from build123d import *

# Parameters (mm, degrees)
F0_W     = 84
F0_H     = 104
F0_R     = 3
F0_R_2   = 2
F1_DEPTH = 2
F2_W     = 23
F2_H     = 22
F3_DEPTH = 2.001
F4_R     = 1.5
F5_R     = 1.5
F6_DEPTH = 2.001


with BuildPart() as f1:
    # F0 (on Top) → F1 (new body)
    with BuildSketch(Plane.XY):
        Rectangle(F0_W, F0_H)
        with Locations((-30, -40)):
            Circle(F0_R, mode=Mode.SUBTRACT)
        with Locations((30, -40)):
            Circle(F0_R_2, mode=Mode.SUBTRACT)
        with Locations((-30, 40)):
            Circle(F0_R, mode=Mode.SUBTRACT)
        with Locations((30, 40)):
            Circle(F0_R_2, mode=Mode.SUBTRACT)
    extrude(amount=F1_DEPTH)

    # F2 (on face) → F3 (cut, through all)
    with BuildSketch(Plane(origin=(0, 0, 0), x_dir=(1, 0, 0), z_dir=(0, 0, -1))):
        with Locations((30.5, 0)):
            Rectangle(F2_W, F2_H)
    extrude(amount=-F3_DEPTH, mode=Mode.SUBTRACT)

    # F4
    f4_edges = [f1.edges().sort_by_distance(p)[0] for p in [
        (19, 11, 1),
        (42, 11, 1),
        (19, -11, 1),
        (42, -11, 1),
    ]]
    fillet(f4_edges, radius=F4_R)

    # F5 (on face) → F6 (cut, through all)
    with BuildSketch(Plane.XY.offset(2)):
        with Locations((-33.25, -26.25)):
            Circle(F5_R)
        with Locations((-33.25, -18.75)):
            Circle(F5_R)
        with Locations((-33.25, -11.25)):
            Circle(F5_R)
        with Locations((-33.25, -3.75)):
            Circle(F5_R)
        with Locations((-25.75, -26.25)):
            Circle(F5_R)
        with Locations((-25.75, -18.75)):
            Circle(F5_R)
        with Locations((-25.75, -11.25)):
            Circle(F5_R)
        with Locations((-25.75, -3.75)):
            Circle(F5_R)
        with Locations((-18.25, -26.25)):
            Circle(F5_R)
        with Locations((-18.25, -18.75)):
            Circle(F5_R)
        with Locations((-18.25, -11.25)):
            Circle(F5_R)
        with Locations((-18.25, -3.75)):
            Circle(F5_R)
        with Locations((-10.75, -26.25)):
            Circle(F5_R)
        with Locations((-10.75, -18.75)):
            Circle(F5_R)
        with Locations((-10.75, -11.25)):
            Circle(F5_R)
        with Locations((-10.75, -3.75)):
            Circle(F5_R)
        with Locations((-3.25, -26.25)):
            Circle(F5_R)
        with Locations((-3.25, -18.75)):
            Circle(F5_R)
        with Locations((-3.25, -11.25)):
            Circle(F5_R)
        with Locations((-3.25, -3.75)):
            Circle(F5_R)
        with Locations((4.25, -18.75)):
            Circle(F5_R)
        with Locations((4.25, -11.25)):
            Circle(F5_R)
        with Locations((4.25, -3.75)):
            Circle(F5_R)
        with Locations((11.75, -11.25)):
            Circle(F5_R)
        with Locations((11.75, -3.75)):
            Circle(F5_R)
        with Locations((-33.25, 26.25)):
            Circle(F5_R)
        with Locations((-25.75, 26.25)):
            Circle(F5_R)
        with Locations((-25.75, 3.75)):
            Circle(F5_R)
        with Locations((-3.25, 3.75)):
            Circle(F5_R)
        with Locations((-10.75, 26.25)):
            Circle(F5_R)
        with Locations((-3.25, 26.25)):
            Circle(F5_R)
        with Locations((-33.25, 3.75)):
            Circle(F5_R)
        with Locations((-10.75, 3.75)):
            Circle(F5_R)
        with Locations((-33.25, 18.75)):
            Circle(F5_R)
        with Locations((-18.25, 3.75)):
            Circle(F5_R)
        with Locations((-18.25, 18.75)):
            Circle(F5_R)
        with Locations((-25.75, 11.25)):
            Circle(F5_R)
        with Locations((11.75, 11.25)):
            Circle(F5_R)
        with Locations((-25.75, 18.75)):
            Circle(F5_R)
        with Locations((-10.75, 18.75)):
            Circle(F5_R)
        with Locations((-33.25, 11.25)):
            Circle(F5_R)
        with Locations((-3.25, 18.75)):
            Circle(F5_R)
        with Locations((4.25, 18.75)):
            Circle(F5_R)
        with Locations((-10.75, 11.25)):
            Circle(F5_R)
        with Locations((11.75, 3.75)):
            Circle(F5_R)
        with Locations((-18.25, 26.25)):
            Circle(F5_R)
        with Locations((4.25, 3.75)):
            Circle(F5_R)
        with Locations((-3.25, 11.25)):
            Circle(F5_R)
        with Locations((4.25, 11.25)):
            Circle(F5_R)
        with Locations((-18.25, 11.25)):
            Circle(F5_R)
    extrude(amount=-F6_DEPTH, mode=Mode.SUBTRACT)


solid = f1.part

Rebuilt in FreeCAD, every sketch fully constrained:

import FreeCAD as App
import Part
import Sketcher
Q = App.Units.Quantity


def edges_at(feature, points):
    """Names of the edges that pass closest to the given points."""
    edges = feature.Shape.Edges
    near = lambda p: min(range(len(edges)), key=lambda i: edges[i].distToShape(Part.Vertex(*p))[0])
    return sorted({f"Edge{near(p) + 1}" for p in points})


def add_polygon(sketch, points):
    """Adds a closed chain of lines whose ends are joined by coincident constraints."""
    first, n = sketch.GeometryCount, len(points)
    for a, b in zip(points, points[1:] + points[:1]):
        sketch.addGeometry(Part.LineSegment(App.Vector(*a, 0), App.Vector(*b, 0)), False)
    for i in range(n):
        sketch.addConstraint(Sketcher.Constraint("Coincident", first + i, 2, first + (i + 1) % n, 1))

doc = App.newDocument("Part")
body = doc.addObject("PartDesign::Body", "Body")

sketch1 = body.newObject("Sketcher::SketchObject", "Sketch")
sketch1.AttachmentSupport = (doc.getObject("XY_Plane"), [""])
sketch1.MapMode = "FlatFace"
add_polygon(sketch1, [(-42, 52), (-42, -52), (42, -52), (42, 52)])
sketch1.addGeometry(Part.Circle(App.Vector(-30, -40, 0), App.Vector(0, 0, 1), 3), False)
sketch1.addGeometry(Part.Circle(App.Vector(30, -40, 0), App.Vector(0, 0, 1), 2), False)
sketch1.addGeometry(Part.Circle(App.Vector(-30, 40, 0), App.Vector(0, 0, 1), 3), False)
sketch1.addGeometry(Part.Circle(App.Vector(30, 40, 0), App.Vector(0, 0, 1), 2), False)
sketch1.addConstraint([
    Sketcher.Constraint("Vertical", 0),
    Sketcher.Constraint("Horizontal", 1),
    Sketcher.Constraint("Vertical", 2),
    Sketcher.Constraint("Horizontal", 3),
    Sketcher.Constraint("Equal", 4, 6),
    Sketcher.Constraint("Equal", 5, 7),
    Sketcher.Constraint("Symmetric", 5, 3, 6, 3, -1, 1),
    Sketcher.Constraint("Symmetric", 4, 3, 7, 3, -1, 1),
    Sketcher.Constraint("Symmetric", 0, 2, 2, 2, -1, 1),
    Sketcher.Constraint("Symmetric", 4, 3, 5, 3, -2),
    Sketcher.Constraint("Diameter", 4, Q("6 mm")),
    Sketcher.Constraint("Diameter", 5, Q("4 mm")),
    Sketcher.Constraint("DistanceX", 1, 1, 1, 2, Q("84 mm")),
    Sketcher.Constraint("DistanceY", 0, 2, 0, 1, Q("104 mm")),
    Sketcher.Constraint("DistanceX", 4, 3, -1, 1, Q("30 mm")),
    Sketcher.Constraint("DistanceY", 4, 3, -1, 1, Q("40 mm")),
])
pad1 = body.newObject("PartDesign::Pad", "Pad")
pad1.Profile = sketch1
pad1.Length = 2

sketch2 = body.newObject("Sketcher::SketchObject", "Sketch001")
sketch2.AttachmentSupport = (doc.getObject("XY_Plane"), [""])
sketch2.MapMode = "FlatFace"
add_polygon(sketch2, [(19, -11), (19, 11), (42, 11), (42, -11)])
sketch2.addConstraint([
    Sketcher.Constraint("Vertical", 0),
    Sketcher.Constraint("Horizontal", 1),
    Sketcher.Constraint("Vertical", 2),
    Sketcher.Constraint("Horizontal", 3),
    Sketcher.Constraint("DistanceX", 1, 1, 1, 2, Q("23 mm")),
    Sketcher.Constraint("DistanceY", 0, 1, 0, 2, Q("22 mm")),
    Sketcher.Constraint("DistanceX", -1, 1, 0, 2, Q("19 mm")),
    Sketcher.Constraint("DistanceY", -1, 1, 0, 2, Q("11 mm")),
])
pocket1 = body.newObject("PartDesign::Pocket", "Pocket")
pocket1.Profile = sketch2
pocket1.Type = "ThroughAll"
pocket1.Reversed = True
doc.recompute()

fillet = body.newObject("PartDesign::Fillet", "Fillet")
fillet.Base = (pocket1, edges_at(pocket1, [
    (19, 11, 1),
    (42, 11, 1),
    (19, -11, 1),
    (42, -11, 1),
]))
fillet.Radius = 1.5

sketch3 = body.newObject("Sketcher::SketchObject", "Sketch002")
sketch3.AttachmentSupport = (doc.getObject("XY_Plane"), [""])
sketch3.MapMode = "FlatFace"
sketch3.AttachmentOffset = App.Placement(App.Vector(0, 0, 2), App.Rotation())
sketch3.addGeometry([
    Part.Circle(App.Vector(-33.2, -26.2, 0), App.Vector(0, 0, 1), 1.5),
    Part.Circle(App.Vector(-33.2, -18.8, 0), App.Vector(0, 0, 1), 1.5),
    Part.Circle(App.Vector(-33.2, -11.2, 0), App.Vector(0, 0, 1), 1.5),
    Part.Circle(App.Vector(-33.2, -3.8, 0), App.Vector(0, 0, 1), 1.5),
    Part.Circle(App.Vector(-25.8, -26.2, 0), App.Vector(0, 0, 1), 1.5),
    Part.Circle(App.Vector(-25.8, -18.8, 0), App.Vector(0, 0, 1), 1.5),
    Part.Circle(App.Vector(-25.8, -11.2, 0), App.Vector(0, 0, 1), 1.5),
    Part.Circle(App.Vector(-25.8, -3.8, 0), App.Vector(0, 0, 1), 1.5),
    Part.Circle(App.Vector(-18.2, -26.2, 0), App.Vector(0, 0, 1), 1.5),
    Part.Circle(App.Vector(-18.2, -18.8, 0), App.Vector(0, 0, 1), 1.5),
    Part.Circle(App.Vector(-18.2, -11.2, 0), App.Vector(0, 0, 1), 1.5),
    Part.Circle(App.Vector(-18.2, -3.8, 0), App.Vector(0, 0, 1), 1.5),
    Part.Circle(App.Vector(-10.8, -26.2, 0), App.Vector(0, 0, 1), 1.5),
    Part.Circle(App.Vector(-10.8, -18.8, 0), App.Vector(0, 0, 1), 1.5),
    Part.Circle(App.Vector(-10.8, -11.2, 0), App.Vector(0, 0, 1), 1.5),
    Part.Circle(App.Vector(-10.8, -3.8, 0), App.Vector(0, 0, 1), 1.5),
    Part.Circle(App.Vector(-3.2, -26.2, 0), App.Vector(0, 0, 1), 1.5),
    Part.Circle(App.Vector(-3.2, -18.8, 0), App.Vector(0, 0, 1), 1.5),
    Part.Circle(App.Vector(-3.2, -11.2, 0), App.Vector(0, 0, 1), 1.5),
    Part.Circle(App.Vector(-3.2, -3.8, 0), App.Vector(0, 0, 1), 1.5),
    Part.Circle(App.Vector(4.2, -18.8, 0), App.Vector(0, 0, 1), 1.5),
    Part.Circle(App.Vector(4.2, -11.2, 0), App.Vector(0, 0, 1), 1.5),
    Part.Circle(App.Vector(4.2, -3.8, 0), App.Vector(0, 0, 1), 1.5),
    Part.Circle(App.Vector(11.8, -11.2, 0), App.Vector(0, 0, 1), 1.5),
    Part.Circle(App.Vector(11.8, -3.8, 0), App.Vector(0, 0, 1), 1.5),
    Part.Circle(App.Vector(-33.2, 26.2, 0), App.Vector(0, 0, 1), 1.5),
    Part.Circle(App.Vector(-25.8, 26.2, 0), App.Vector(0, 0, 1), 1.5),
    Part.Circle(App.Vector(-25.8, 3.8, 0), App.Vector(0, 0, 1), 1.5),
    Part.Circle(App.Vector(-3.2, 3.8, 0), App.Vector(0, 0, 1), 1.5),
    Part.Circle(App.Vector(-10.8, 26.2, 0), App.Vector(0, 0, 1), 1.5),
    Part.Circle(App.Vector(-3.2, 26.2, 0), App.Vector(0, 0, 1), 1.5),
    Part.Circle(App.Vector(-33.2, 3.8, 0), App.Vector(0, 0, 1), 1.5),
    Part.Circle(App.Vector(-10.8, 3.8, 0), App.Vector(0, 0, 1), 1.5),
    Part.Circle(App.Vector(-33.2, 18.8, 0), App.Vector(0, 0, 1), 1.5),
    Part.Circle(App.Vector(-18.2, 3.8, 0), App.Vector(0, 0, 1), 1.5),
    Part.Circle(App.Vector(-18.2, 18.8, 0), App.Vector(0, 0, 1), 1.5),
    Part.Circle(App.Vector(-25.8, 11.2, 0), App.Vector(0, 0, 1), 1.5),
    Part.Circle(App.Vector(11.8, 11.2, 0), App.Vector(0, 0, 1), 1.5),
    Part.Circle(App.Vector(-25.8, 18.8, 0), App.Vector(0, 0, 1), 1.5),
    Part.Circle(App.Vector(-10.8, 18.8, 0), App.Vector(0, 0, 1), 1.5),
    Part.Circle(App.Vector(-33.2, 11.2, 0), App.Vector(0, 0, 1), 1.5),
    Part.Circle(App.Vector(-3.2, 18.8, 0), App.Vector(0, 0, 1), 1.5),
    Part.Circle(App.Vector(4.2, 18.8, 0), App.Vector(0, 0, 1), 1.5),
    Part.Circle(App.Vector(-10.8, 11.2, 0), App.Vector(0, 0, 1), 1.5),
    Part.Circle(App.Vector(11.8, 3.8, 0), App.Vector(0, 0, 1), 1.5),
    Part.Circle(App.Vector(-18.2, 26.2, 0), App.Vector(0, 0, 1), 1.5),
    Part.Circle(App.Vector(4.2, 3.8, 0), App.Vector(0, 0, 1), 1.5),
    Part.Circle(App.Vector(-3.2, 11.2, 0), App.Vector(0, 0, 1), 1.5),
    Part.Circle(App.Vector(4.2, 11.2, 0), App.Vector(0, 0, 1), 1.5),
    Part.Circle(App.Vector(-18.2, 11.2, 0), App.Vector(0, 0, 1), 1.5),
], False)
sketch3.addConstraint([
    Sketcher.Constraint("Equal", 0, 1),
    Sketcher.Constraint("Equal", 1, 2),
    Sketcher.Constraint("Equal", 2, 3),
    Sketcher.Constraint("Equal", 3, 4),
    Sketcher.Constraint("Equal", 4, 5),
    Sketcher.Constraint("Equal", 5, 6),
    Sketcher.Constraint("Equal", 6, 7),
    Sketcher.Constraint("Equal", 7, 8),
    Sketcher.Constraint("Equal", 8, 9),
    Sketcher.Constraint("Equal", 9, 10),
    Sketcher.Constraint("Equal", 10, 11),
    Sketcher.Constraint("Equal", 11, 12),
    Sketcher.Constraint("Equal", 12, 13),
    Sketcher.Constraint("Equal", 13, 14),
    Sketcher.Constraint("Equal", 14, 15),
    Sketcher.Constraint("Equal", 15, 16),
    Sketcher.Constraint("Equal", 16, 17),
    Sketcher.Constraint("Equal", 17, 18),
    Sketcher.Constraint("Equal", 18, 19),
    Sketcher.Constraint("Equal", 19, 20),
    Sketcher.Constraint("Equal", 20, 21),
    Sketcher.Constraint("Equal", 21, 22),
    Sketcher.Constraint("Equal", 22, 23),
    Sketcher.Constraint("Equal", 23, 24),
    Sketcher.Constraint("Equal", 24, 25),
    Sketcher.Constraint("Equal", 25, 26),
    Sketcher.Constraint("Equal", 26, 27),
    Sketcher.Constraint("Equal", 27, 28),
    Sketcher.Constraint("Equal", 28, 29),
    Sketcher.Constraint("Equal", 29, 30),
    Sketcher.Constraint("Equal", 30, 31),
    Sketcher.Constraint("Equal", 31, 32),
    Sketcher.Constraint("Equal", 32, 33),
    Sketcher.Constraint("Equal", 33, 34),
    Sketcher.Constraint("Equal", 34, 35),
    Sketcher.Constraint("Equal", 35, 36),
    Sketcher.Constraint("Equal", 36, 37),
    Sketcher.Constraint("Equal", 37, 38),
    Sketcher.Constraint("Equal", 38, 39),
    Sketcher.Constraint("Equal", 39, 40),
    Sketcher.Constraint("Equal", 40, 41),
    Sketcher.Constraint("Equal", 41, 42),
    Sketcher.Constraint("Equal", 42, 43),
    Sketcher.Constraint("Equal", 43, 44),
    Sketcher.Constraint("Equal", 44, 45),
    Sketcher.Constraint("Equal", 45, 46),
    Sketcher.Constraint("Equal", 46, 47),
    Sketcher.Constraint("Equal", 47, 48),
    Sketcher.Constraint("Equal", 48, 49),
    Sketcher.Constraint("Symmetric", 0, 3, 25, 3, -1),
    Sketcher.Constraint("Symmetric", 4, 3, 26, 3, -1),
    Sketcher.Constraint("Symmetric", 7, 3, 27, 3, -1),
    Sketcher.Constraint("Symmetric", 19, 3, 28, 3, -1),
    Sketcher.Constraint("Symmetric", 12, 3, 29, 3, -1),
    Sketcher.Constraint("Symmetric", 16, 3, 30, 3, -1),
    Sketcher.Constraint("Symmetric", 3, 3, 31, 3, -1),
    Sketcher.Constraint("Symmetric", 15, 3, 32, 3, -1),
    Sketcher.Constraint("Symmetric", 1, 3, 33, 3, -1),
    Sketcher.Constraint("Symmetric", 11, 3, 34, 3, -1),
    Sketcher.Constraint("Symmetric", 9, 3, 35, 3, -1),
    Sketcher.Constraint("Symmetric", 6, 3, 36, 3, -1),
    Sketcher.Constraint("Symmetric", 23, 3, 37, 3, -1),
    Sketcher.Constraint("Symmetric", 5, 3, 38, 3, -1),
    Sketcher.Constraint("Symmetric", 13, 3, 39, 3, -1),
    Sketcher.Constraint("Symmetric", 2, 3, 40, 3, -1),
    Sketcher.Constraint("Symmetric", 17, 3, 41, 3, -1),
    Sketcher.Constraint("Symmetric", 20, 3, 42, 3, -1),
    Sketcher.Constraint("Symmetric", 14, 3, 43, 3, -1),
    Sketcher.Constraint("Symmetric", 24, 3, 44, 3, -1),
    Sketcher.Constraint("Symmetric", 8, 3, 45, 3, -1),
    Sketcher.Constraint("Symmetric", 22, 3, 46, 3, -1),
    Sketcher.Constraint("Symmetric", 18, 3, 47, 3, -1),
    Sketcher.Constraint("Symmetric", 21, 3, 48, 3, -1),
    Sketcher.Constraint("Symmetric", 10, 3, 49, 3, -1),
    Sketcher.Constraint("Horizontal", 0, 3, 4, 3),
    Sketcher.Constraint("Horizontal", 1, 3, 5, 3),
    Sketcher.Constraint("Horizontal", 2, 3, 6, 3),
    Sketcher.Constraint("Horizontal", 3, 3, 7, 3),
    Sketcher.Constraint("Horizontal", 4, 3, 8, 3),
    Sketcher.Constraint("Horizontal", 5, 3, 9, 3),
    Sketcher.Constraint("Horizontal", 6, 3, 10, 3),
    Sketcher.Constraint("Horizontal", 7, 3, 11, 3),
    Sketcher.Constraint("Horizontal", 8, 3, 12, 3),
    Sketcher.Constraint("Horizontal", 9, 3, 13, 3),
    Sketcher.Constraint("Horizontal", 10, 3, 14, 3),
    Sketcher.Constraint("Horizontal", 11, 3, 15, 3),
    Sketcher.Constraint("Horizontal", 12, 3, 16, 3),
    Sketcher.Constraint("Horizontal", 13, 3, 17, 3),
    Sketcher.Constraint("Horizontal", 14, 3, 18, 3),
    Sketcher.Constraint("Horizontal", 15, 3, 19, 3),
    Sketcher.Constraint("Horizontal", 17, 3, 20, 3),
    Sketcher.Constraint("Horizontal", 18, 3, 21, 3),
    Sketcher.Constraint("Horizontal", 19, 3, 22, 3),
    Sketcher.Constraint("Horizontal", 21, 3, 23, 3),
    Sketcher.Constraint("Horizontal", 22, 3, 24, 3),
    Sketcher.Constraint("Vertical", 0, 3, 1, 3),
    Sketcher.Constraint("Vertical", 1, 3, 2, 3),
    Sketcher.Constraint("Vertical", 2, 3, 3, 3),
    Sketcher.Constraint("Vertical", 4, 3, 5, 3),
    Sketcher.Constraint("Vertical", 5, 3, 6, 3),
    Sketcher.Constraint("Vertical", 6, 3, 7, 3),
    Sketcher.Constraint("Vertical", 8, 3, 9, 3),
    Sketcher.Constraint("Vertical", 9, 3, 10, 3),
    Sketcher.Constraint("Vertical", 10, 3, 11, 3),
    Sketcher.Constraint("Vertical", 12, 3, 13, 3),
    Sketcher.Constraint("Vertical", 13, 3, 14, 3),
    Sketcher.Constraint("Vertical", 14, 3, 15, 3),
    Sketcher.Constraint("Vertical", 16, 3, 17, 3),
    Sketcher.Constraint("Vertical", 17, 3, 18, 3),
    Sketcher.Constraint("Vertical", 18, 3, 19, 3),
    Sketcher.Constraint("Vertical", 20, 3, 21, 3),
    Sketcher.Constraint("Vertical", 21, 3, 22, 3),
    Sketcher.Constraint("Vertical", 23, 3, 24, 3),
    Sketcher.Constraint("Diameter", 0, Q("3 mm")),
    Sketcher.Constraint("DistanceY", 0, 3, 2, 3, Q("15 mm")),
    Sketcher.Constraint("DistanceY", 1, 3, 3, 3, Q("15 mm")),
    Sketcher.Constraint("DistanceX", 0, 3, 8, 3, Q("15 mm")),
    Sketcher.Constraint("DistanceX", 4, 3, 12, 3, Q("15 mm")),
    Sketcher.Constraint("DistanceX", 8, 3, 16, 3, Q("15 mm")),
    Sketcher.Constraint("DistanceX", 13, 3, 20, 3, Q("15 mm")),
    Sketcher.Constraint("DistanceX", 18, 3, 23, 3, Q("15 mm")),
    Sketcher.Constraint("DistanceY", 3, 3, 25, 3, Q("30 mm")),
    Sketcher.Constraint("DistanceY", 0, 3, 1, 3, Q("7.5 mm")),
    Sketcher.Constraint("DistanceX", 0, 3, 4, 3, Q("7.5 mm")),
    Sketcher.Constraint("DistanceX", 0, 3, -1, 1, Q("33.25 mm")),
])
pocket2 = body.newObject("PartDesign::Pocket", "Pocket001")
pocket2.Profile = sketch3
pocket2.Type = "ThroughAll"

doc.recompute()
